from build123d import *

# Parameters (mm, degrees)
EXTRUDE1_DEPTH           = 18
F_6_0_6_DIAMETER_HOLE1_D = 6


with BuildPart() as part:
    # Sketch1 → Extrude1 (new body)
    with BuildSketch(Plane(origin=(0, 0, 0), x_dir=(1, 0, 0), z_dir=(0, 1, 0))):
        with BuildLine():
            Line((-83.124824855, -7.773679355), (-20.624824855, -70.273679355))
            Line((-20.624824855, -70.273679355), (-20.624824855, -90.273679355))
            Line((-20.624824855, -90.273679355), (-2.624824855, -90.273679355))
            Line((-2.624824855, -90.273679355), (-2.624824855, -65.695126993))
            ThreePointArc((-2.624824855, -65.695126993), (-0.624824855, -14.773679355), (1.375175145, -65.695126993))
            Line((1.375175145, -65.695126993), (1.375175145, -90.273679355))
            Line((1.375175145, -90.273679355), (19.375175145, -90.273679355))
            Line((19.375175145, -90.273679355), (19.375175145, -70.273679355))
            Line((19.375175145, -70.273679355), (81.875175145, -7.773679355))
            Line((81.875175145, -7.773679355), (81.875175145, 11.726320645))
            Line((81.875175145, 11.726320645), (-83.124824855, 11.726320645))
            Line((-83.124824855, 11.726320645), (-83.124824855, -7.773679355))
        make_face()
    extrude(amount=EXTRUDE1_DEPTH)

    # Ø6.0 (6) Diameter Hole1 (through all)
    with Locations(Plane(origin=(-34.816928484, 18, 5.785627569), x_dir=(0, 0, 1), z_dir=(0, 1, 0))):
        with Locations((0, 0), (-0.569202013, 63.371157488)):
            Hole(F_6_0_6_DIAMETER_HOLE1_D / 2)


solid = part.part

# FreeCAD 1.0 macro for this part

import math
import FreeCAD as App
import Part
import Sketcher

doc = App.newDocument("Part")
params = doc.addObject("Spreadsheet::Sheet", "Params")
for row, (alias, value) in enumerate([
    ("sketch1_radius", "25.5 mm"),
    ("sketch1_width", "18 mm"),
    ("sketch1_width2", "165 mm"),
    ("sketch1_height", "20 mm"),
    ("sketch1_height2", "19.5 mm"),
    ("pad1_length", "18 mm"),
    ("sketch2_diameter", "6 mm"),
    ("hole_diameter", "6 mm"),
], start=1):
    params.set(f"A{row}", alias)
    params.set(f"B{row}", "=" + value)
    params.setAlias(f"B{row}", alias)

body = doc.addObject("PartDesign::Body", "Body")

# Sketch on XZ plane
sketch1 = doc.addObject("Sketcher::SketchObject", "Sketch")
body.addObject(sketch1)
sketch1.AttachmentSupport = (doc.XZ_Plane, [""])
sketch1.MapMode = "FlatFace"
sketch1.addGeometry(Part.LineSegment(App.Vector(-83.124825, 7.773679, 0), App.Vector(-20.624825, 70.273679, 0)), False)
sketch1.addGeometry(Part.LineSegment(App.Vector(-20.624825, 70.273679, 0), App.Vector(-20.624825, 90.273679, 0)), False)
sketch1.addGeometry(Part.LineSegment(App.Vector(-20.624825, 90.273679, 0), App.Vector(-2.624825, 90.273679, 0)), False)
sketch1.addGeometry(Part.LineSegment(App.Vector(-2.624825, 90.273679, 0), App.Vector(-2.624825, 65.695127, 0)), False)
sketch1.addGeometry(Part.ArcOfCircle(Part.Circle(App.Vector(-0.624825, 40.273679, 0), App.Vector(0, 0, 1), 25.5), math.radians(94.498407), math.radians(445.501593)), False)
sketch1.addGeometry(Part.LineSegment(App.Vector(1.375175, 65.695127, 0), App.Vector(1.375175, 90.273679, 0)), False)
sketch1.addGeometry(Part.LineSegment(App.Vector(1.375175, 90.273679, 0), App.Vector(19.375175, 90.273679, 0)), False)
sketch1.addGeometry(Part.LineSegment(App.Vector(19.375175, 90.273679, 0), App.Vector(19.375175, 70.273679, 0)), False)
sketch1.addGeometry(Part.LineSegment(App.Vector(19.375175, 70.273679, 0), App.Vector(81.875175, 7.773679, 0)), False)
sketch1.addGeometry(Part.LineSegment(App.Vector(81.875175, 7.773679, 0), App.Vector(81.875175, -11.726321, 0)), False)
sketch1.addGeometry(Part.LineSegment(App.Vector(81.875175, -11.726321, 0), App.Vector(-83.124825, -11.726321, 0)), False)
sketch1.addGeometry(Part.LineSegment(App.Vector(-83.124825, -11.726321, 0), App.Vector(-83.124825, 7.773679, 0)), False)
sketch1.addConstraint(Sketcher.Constraint("Coincident", 0, 2, 1, 1))
sketch1.addConstraint(Sketcher.Constraint("Coincident", 1, 2, 2, 1))
sketch1.addConstraint(Sketcher.Constraint("Coincident", 2, 2, 3, 1))
sketch1.addConstraint(Sketcher.Constraint("Coincident", 3, 2, 4, 1))
sketch1.addConstraint(Sketcher.Constraint("Coincident", 4, 2, 5, 1))
sketch1.addConstraint(Sketcher.Constraint("Coincident", 5, 2, 6, 1))
sketch1.addConstraint(Sketcher.Constraint("Coincident", 6, 2, 7, 1))
sketch1.addConstraint(Sketcher.Constraint("Coincident", 7, 2, 8, 1))
sketch1.addConstraint(Sketcher.Constraint("Coincident", 8, 2, 9, 1))
sketch1.addConstraint(Sketcher.Constraint("Coincident", 9, 2, 10, 1))
sketch1.addConstraint(Sketcher.Constraint("Coincident", 10, 2, 11, 1))
sketch1.addConstraint(Sketcher.Constraint("Coincident", 11, 2, 0, 1))
sketch1.addConstraint(Sketcher.Constraint("Vertical", 1))
sketch1.addConstraint(Sketcher.Constraint("Horizontal", 2))
sketch1.addConstraint(Sketcher.Constraint("Vertical", 3))
sketch1.addConstraint(Sketcher.Constraint("Vertical", 5))
sketch1.addConstraint(Sketcher.Constraint("Horizontal", 6))
sketch1.addConstraint(Sketcher.Constraint("Vertical", 7))
sketch1.addConstraint(Sketcher.Constraint("Vertical", 9))
sketch1.addConstraint(Sketcher.Constraint("Horizontal", 10))
sketch1.addConstraint(Sketcher.Constraint("Vertical", 11))
sketch1.addConstraint(Sketcher.Constraint("Perpendicular", 0, 8))
sketch1.addConstraint(Sketcher.Constraint("Horizontal", 3, 2, 4, 2))
sketch1.addConstraint(Sketcher.Constraint("Horizontal", 2, 2, 5, 2))
sketch1.addConstraint(Sketcher.Constraint("Horizontal", 0, 2, 7, 2))
sketch1.addConstraint(Sketcher.Constraint("Horizontal", 8, 2, 11, 2))
sketch1.addConstraint(Sketcher.Constraint("Equal", 2, 6))
sketch1.addConstraint(Sketcher.Constraint("Equal", 0, 8))
sketch1.addConstraint(Sketcher.Constraint("Radius", 4, 25.5))
sketch1.addConstraint(Sketcher.Constraint("DistanceX", 2, 1, 2, 2, 18.0))
sketch1.addConstraint(Sketcher.Constraint("DistanceX", 10, 2, 10, 1, 165.0))
sketch1.addConstraint(Sketcher.Constraint("DistanceY", 1, 1, 1, 2, 20.0))
sketch1.addConstraint(Sketcher.Constraint("DistanceY", 9, 2, 9, 1, 19.5))
sketch1.addConstraint(Sketcher.Constraint("DistanceX", 0, 2, 4, 3, 20.0))
sketch1.addConstraint(Sketcher.Constraint("DistanceY", 4, 3, 0, 2, 30.0))
sketch1.addConstraint(Sketcher.Constraint("DistanceY", -1, 1, 4, 3, 40.273679))
sketch1.addConstraint(Sketcher.Constraint("DistanceX", 4, 3, -1, 1, 0.624825))
sketch1.setExpression("Constraints[28]", "Params.sketch1_radius")
sketch1.setExpression("Constraints[29]", "Params.sketch1_width")
sketch1.setExpression("Constraints[30]", "Params.sketch1_width2")
sketch1.setExpression("Constraints[31]", "Params.sketch1_height")
sketch1.setExpression("Constraints[32]", "Params.sketch1_height2")
pad1 = doc.addObject("PartDesign::Pad", "Pad")
body.addObject(pad1)
pad1.Profile = sketch1
pad1.setExpression("Length", "Params.pad1_length")
pad1.Reversed = True

# Sketch on XZ plane
sketch2 = doc.addObject("Sketcher::SketchObject", "Sketch001")
body.addObject(sketch2)
sketch2.AttachmentSupport = (doc.XZ_Plane, [""])
sketch2.MapMode = "FlatFace"
sketch2.AttachmentOffset = App.Placement(App.Vector(0, 0, -18), App.Rotation())
sketch2.addGeometry(Part.Circle(App.Vector(-34.816928, 5.785628, 0), App.Vector(0, 0, 1), 3), False)
sketch2.addGeometry(Part.Circle(App.Vector(28.554229, 5.216426, 0), App.Vector(0, 0, 1), 3), False)
sketch2.addConstraint(Sketcher.Constraint("Equal", 0, 1))
sketch2.addConstraint(Sketcher.Constraint("Diameter", 0, 6.0))
sketch2.addConstraint(Sketcher.Constraint("DistanceX", 0, 3, -1, 1, 34.816928))
sketch2.addConstraint(Sketcher.Constraint("DistanceX", -1, 1, 1, 3, 28.554229))
sketch2.addConstraint(Sketcher.Constraint("DistanceY", -1, 1, 0, 3, 5.785628))
sketch2.addConstraint(Sketcher.Constraint("DistanceY", -1, 1, 1, 3, 5.216426))
sketch2.setExpression("Constraints[1]", "Params.sketch2_diameter")
doc.recompute()
hole = doc.addObject("PartDesign::Hole", "Hole")
body.addObject(hole)
hole.Profile = sketch2
hole.ThreadType = "None"
hole.setExpression("Diameter", "Params.hole_diameter")
hole.DepthType = "ThroughAll"
hole.Reversed = True

doc.recompute()
